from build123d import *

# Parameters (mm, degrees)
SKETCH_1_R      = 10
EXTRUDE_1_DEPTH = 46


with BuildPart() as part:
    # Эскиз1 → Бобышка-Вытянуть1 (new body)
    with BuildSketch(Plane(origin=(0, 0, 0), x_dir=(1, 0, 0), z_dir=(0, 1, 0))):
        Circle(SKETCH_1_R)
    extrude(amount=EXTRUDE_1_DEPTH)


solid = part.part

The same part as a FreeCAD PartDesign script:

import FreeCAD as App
import Part
import Sketcher

V = App.Vector

doc = App.newDocument("Part")
body = doc.addObject("PartDesign::Body", "Body")

sketch1 = doc.addObject("Sketcher::SketchObject", "Sketch")
body.addObject(sketch1)
sketch1.AttachmentSupport = (doc.XZ_Plane, [""])
sketch1.MapMode = "FlatFace"
sketch1.addGeometry(Part.Circle(V(0, 0, 0), V(0, 0, 1), 10), False)
sketch1.addConstraint(Sketcher.Constraint("Coincident", 0, 3, -1, 1))
sketch1.addConstraint(Sketcher.Constraint("Diameter", 0, 20.0))
pad1 = doc.addObject("PartDesign::Pad", "Pad")
body.addObject(pad1)
pad1.Profile = sketch1
pad1.Length = 46
pad1.Reversed = True

doc.recompute()
